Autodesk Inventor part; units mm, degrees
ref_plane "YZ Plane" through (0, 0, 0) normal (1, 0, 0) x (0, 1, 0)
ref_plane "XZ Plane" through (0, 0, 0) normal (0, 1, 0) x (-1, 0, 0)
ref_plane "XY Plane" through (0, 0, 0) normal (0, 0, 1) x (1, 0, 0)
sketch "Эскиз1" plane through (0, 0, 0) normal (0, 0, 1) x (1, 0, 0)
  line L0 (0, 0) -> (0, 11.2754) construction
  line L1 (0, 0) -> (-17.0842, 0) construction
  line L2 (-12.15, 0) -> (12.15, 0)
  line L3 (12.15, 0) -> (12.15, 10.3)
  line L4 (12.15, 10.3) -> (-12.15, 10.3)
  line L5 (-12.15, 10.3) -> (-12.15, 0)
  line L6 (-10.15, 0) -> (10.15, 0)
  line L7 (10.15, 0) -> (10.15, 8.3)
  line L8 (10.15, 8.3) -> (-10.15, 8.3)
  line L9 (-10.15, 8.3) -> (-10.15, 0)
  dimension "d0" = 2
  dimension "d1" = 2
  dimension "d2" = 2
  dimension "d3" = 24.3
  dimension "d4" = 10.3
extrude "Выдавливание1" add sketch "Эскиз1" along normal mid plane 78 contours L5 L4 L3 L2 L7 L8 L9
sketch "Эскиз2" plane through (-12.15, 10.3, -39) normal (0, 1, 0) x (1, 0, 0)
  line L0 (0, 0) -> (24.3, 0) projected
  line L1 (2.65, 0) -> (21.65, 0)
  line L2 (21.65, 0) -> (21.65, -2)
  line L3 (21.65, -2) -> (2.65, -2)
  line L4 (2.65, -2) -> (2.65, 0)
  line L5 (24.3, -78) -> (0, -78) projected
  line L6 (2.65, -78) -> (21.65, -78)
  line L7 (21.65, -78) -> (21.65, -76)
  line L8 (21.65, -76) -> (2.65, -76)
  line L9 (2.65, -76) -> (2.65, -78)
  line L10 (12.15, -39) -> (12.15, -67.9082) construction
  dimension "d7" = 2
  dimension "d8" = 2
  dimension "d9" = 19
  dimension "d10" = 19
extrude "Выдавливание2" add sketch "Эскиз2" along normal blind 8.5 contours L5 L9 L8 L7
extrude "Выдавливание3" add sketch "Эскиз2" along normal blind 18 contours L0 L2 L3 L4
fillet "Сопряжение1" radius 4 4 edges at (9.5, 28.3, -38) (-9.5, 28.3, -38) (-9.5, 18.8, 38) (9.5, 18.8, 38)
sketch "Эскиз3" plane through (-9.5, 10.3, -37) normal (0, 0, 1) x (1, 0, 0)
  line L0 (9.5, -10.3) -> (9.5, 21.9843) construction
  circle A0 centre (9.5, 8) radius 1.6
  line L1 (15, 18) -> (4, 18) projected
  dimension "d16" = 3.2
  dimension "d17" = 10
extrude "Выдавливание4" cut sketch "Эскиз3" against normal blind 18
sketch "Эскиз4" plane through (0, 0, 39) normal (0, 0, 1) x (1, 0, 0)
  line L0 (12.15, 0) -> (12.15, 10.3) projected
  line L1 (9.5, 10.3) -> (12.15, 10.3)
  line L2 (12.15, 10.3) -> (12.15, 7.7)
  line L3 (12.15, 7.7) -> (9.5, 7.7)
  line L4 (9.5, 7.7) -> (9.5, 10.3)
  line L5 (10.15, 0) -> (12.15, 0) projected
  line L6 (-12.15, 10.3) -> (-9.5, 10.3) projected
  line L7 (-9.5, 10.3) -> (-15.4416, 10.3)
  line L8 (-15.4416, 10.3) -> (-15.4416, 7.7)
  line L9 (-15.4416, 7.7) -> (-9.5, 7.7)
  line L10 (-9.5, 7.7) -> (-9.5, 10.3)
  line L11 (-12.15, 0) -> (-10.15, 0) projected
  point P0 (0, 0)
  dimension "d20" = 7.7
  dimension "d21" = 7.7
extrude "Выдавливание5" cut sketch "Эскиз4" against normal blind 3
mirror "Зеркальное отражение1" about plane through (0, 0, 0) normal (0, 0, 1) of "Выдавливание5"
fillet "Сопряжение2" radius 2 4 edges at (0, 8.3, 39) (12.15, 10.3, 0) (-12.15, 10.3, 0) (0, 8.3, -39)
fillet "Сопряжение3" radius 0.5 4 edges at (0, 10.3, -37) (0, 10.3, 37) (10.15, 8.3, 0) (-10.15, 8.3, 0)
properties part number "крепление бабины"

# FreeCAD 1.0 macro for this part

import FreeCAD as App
import Part
import Sketcher

V = App.Vector


def edges_at(feature, points):
    """Names of the edges that pass closest to the given points."""
    edges = feature.Shape.Edges
    near = lambda p: min(range(len(edges)), key=lambda i: edges[i].distToShape(Part.Vertex(*p))[0])
    return sorted({f"Edge{near(p) + 1}" for p in points})


def add_polygon(sketch, points):
    """Adds a closed chain of lines whose ends are joined by coincident constraints."""
    first, n = sketch.GeometryCount, len(points)
    for a, b in zip(points, points[1:] + points[:1]):
        sketch.addGeometry(Part.LineSegment(App.Vector(*a, 0), App.Vector(*b, 0)), False)
    for i in range(n):
        sketch.addConstraint(Sketcher.Constraint("Coincident", first + i, 2, first + (i + 1) % n, 1))

doc = App.newDocument("Part")
body = doc.addObject("PartDesign::Body", "Body")

# Sketch on XY plane
sketch1 = body.newObject("Sketcher::SketchObject", "Sketch")
sketch1.AttachmentSupport = (doc.getObject("XY_Plane"), [""])
sketch1.MapMode = "FlatFace"
add_polygon(sketch1, [(-12.2, 10.3), (-12.2, 0), (-10.2, 0), (-10.2, 8.3), (10.2, 8.3), (10.2, 0), (12.2, 0), (12.2, 10.3)])  # lines 0-7
sketch1.addConstraint([
    Sketcher.Constraint("Vertical", 0),
    Sketcher.Constraint("Horizontal", 1),
    Sketcher.Constraint("Vertical", 2),
    Sketcher.Constraint("Horizontal", 3),
    Sketcher.Constraint("Vertical", 4),
    Sketcher.Constraint("Horizontal", 5),
    Sketcher.Constraint("Vertical", 6),
    Sketcher.Constraint("Horizontal", 7),
    Sketcher.Constraint("Symmetric", 1, 2, 4, 2, -1, 1),
    Sketcher.Constraint("Symmetric", 0, 2, 5, 2, -2),
    Sketcher.Constraint("DistanceX", 1, 1, 1, 2, 2.0),
    Sketcher.Constraint("DistanceX", 7, 2, 7, 1, 24.3),
    Sketcher.Constraint("DistanceY", 0, 2, 0, 1, 10.3),
    Sketcher.Constraint("DistanceY", 3, 2, 6, 2, 2.0),
])
pad1 = body.newObject("PartDesign::Pad", "Pad")
pad1.Profile = sketch1
pad1.Length = 78
pad1.Midplane = True

# Sketch on XZ plane
sketch2 = body.newObject("Sketcher::SketchObject", "Sketch001")
sketch2.AttachmentSupport = (doc.getObject("XZ_Plane"), [""])
sketch2.MapMode = "FlatFace"
sketch2.AttachmentOffset = App.Placement(V(0, 0, -10.3), App.Rotation())
add_polygon(sketch2, [(-9.5, 39), (9.5, 39), (9.5, 37), (-9.5, 37)])  # lines 0-3
sketch2.addConstraint([
    Sketcher.Constraint("Horizontal", 0),
    Sketcher.Constraint("Vertical", 1),
    Sketcher.Constraint("Horizontal", 2),
    Sketcher.Constraint("Vertical", 3),
    Sketcher.Constraint("DistanceX", 0, 1, 0, 2, 19.0),
    Sketcher.Constraint("DistanceY", 1, 2, 1, 1, 2.0),
    Sketcher.Constraint("DistanceY", -1, 1, 0, 2, 39.0),
    Sketcher.Constraint("DistanceX", -1, 1, 0, 2, 9.5),
])
pad2 = body.newObject("PartDesign::Pad", "Pad001")
pad2.Profile = sketch2
pad2.Length = 8.5
pad2.Reversed = True

# Sketch on XZ plane
sketch3 = body.newObject("Sketcher::SketchObject", "Sketch002")
sketch3.AttachmentSupport = (doc.getObject("XZ_Plane"), [""])
sketch3.MapMode = "FlatFace"
sketch3.AttachmentOffset = App.Placement(V(0, 0, -10.3), App.Rotation())
add_polygon(sketch3, [(9.5, -39), (-9.5, -39), (-9.5, -37), (9.5, -37)])  # lines 0-3
sketch3.addConstraint([
    Sketcher.Constraint("Horizontal", 0),
    Sketcher.Constraint("Vertical", 1),
    Sketcher.Constraint("Horizontal", 2),
    Sketcher.Constraint("Vertical", 3),
    Sketcher.Constraint("DistanceX", 0, 2, 0, 1, 19.0),
    Sketcher.Constraint("DistanceY", 1, 1, 1, 2, 2.0),
    Sketcher.Constraint("DistanceY", 0, 2, -1, 1, 39.0),
    Sketcher.Constraint("DistanceX", 0, 2, -1, 1, 9.5),
])
pad3 = body.newObject("PartDesign::Pad", "Pad002")
pad3.Profile = sketch3
pad3.Length = 18
pad3.Reversed = True
doc.recompute()

fillet = body.newObject("PartDesign::Fillet", "Fillet")
fillet.Base = (pad3, edges_at(pad3, [
    (9.5, 28.3, -38),
    (-9.5, 28.3, -38),
    (-9.5, 18.8, 38),
    (9.5, 18.8, 38),
]))
fillet.Radius = 4

# Sketch on XY plane
sketch4 = body.newObject("Sketcher::SketchObject", "Sketch003")
sketch4.AttachmentSupport = (doc.getObject("XY_Plane"), [""])
sketch4.MapMode = "FlatFace"
sketch4.AttachmentOffset = App.Placement(V(0, 0, -37), App.Rotation())
sketch4.addGeometry(Part.Circle(V(0, 18.3, 0), V(0, 0, 1), 1.6), False)
sketch4.addConstraint([
    Sketcher.Constraint("PointOnObject", 0, 3, -2),
    Sketcher.Constraint("Diameter", 0, 3.2),
    Sketcher.Constraint("DistanceY", -1, 1, 0, 3, 18.3),
])
pocket1 = body.newObject("PartDesign::Pocket", "Pocket")
pocket1.Profile = sketch4
pocket1.Length = 18

# Sketch on XY plane
sketch5 = body.newObject("Sketcher::SketchObject", "Sketch004")
sketch5.AttachmentSupport = (doc.getObject("XY_Plane"), [""])
sketch5.MapMode = "FlatFace"
sketch5.AttachmentOffset = App.Placement(V(0, 0, 39), App.Rotation())
add_polygon(sketch5, [(9.5, 7.7), (12.2, 7.7), (12.2, 10.3), (9.5, 10.3)])  # lines 0-3
add_polygon(sketch5, [(-9.5, 10.3), (-15.4, 10.3), (-15.4, 7.7), (-9.5, 7.7)])  # lines 4-7
sketch5.addConstraint([
    Sketcher.Constraint("Horizontal", 0),
    Sketcher.Constraint("Vertical", 1),
    Sketcher.Constraint("Horizontal", 2),
    Sketcher.Constraint("Vertical", 3),
    Sketcher.Constraint("Horizontal", 4),
    Sketcher.Constraint("Vertical", 5),
    Sketcher.Constraint("Horizontal", 6),
    Sketcher.Constraint("Vertical", 7),
    Sketcher.Constraint("Symmetric", 3, 2, 6, 2, -2),
    Sketcher.Constraint("Horizontal", 2, 2, 4, 2),
    Sketcher.Constraint("DistanceY", -1, 1, 0, 2, 7.7),
    Sketcher.Constraint("DistanceY", 1, 1, 1, 2, 2.6),
    Sketcher.Constraint("DistanceX", 6, 2, 3, 2, 19.0),
    Sketcher.Constraint("DistanceX", 0, 1, 0, 2, 2.65),
    Sketcher.Constraint("DistanceX", 4, 2, 4, 1, 5.9416),
])
pocket2 = body.newObject("PartDesign::Pocket", "Pocket001")
pocket2.Profile = sketch5
pocket2.Length = 3
doc.recompute()

mirrored = body.newObject("PartDesign::Mirrored", "Mirrored")
mirrored.Originals = [pocket2]
mirrored.MirrorPlane = (doc.getObject("XY_Plane"), [""])
body.Tip = mirrored
doc.recompute()

fillet2 = body.newObject("PartDesign::Fillet", "Fillet001")
fillet2.Base = (mirrored, edges_at(mirrored, [
    (0, 8.3, 39),
    (12.15, 10.3, 0),
    (-12.15, 10.3, 0),
    (0, 8.3, -39),
]))
fillet2.Radius = 2
doc.recompute()

fillet3 = body.newObject("PartDesign::Fillet", "Fillet002")
fillet3.Base = (fillet2, edges_at(fillet2, [
    (0, 10.3, -37),
    (0, 10.3, 37),
    (10.15, 8.3, 0),
    (-10.15, 8.3, 0),
]))
fillet3.Radius = 0.5

doc.recompute()
